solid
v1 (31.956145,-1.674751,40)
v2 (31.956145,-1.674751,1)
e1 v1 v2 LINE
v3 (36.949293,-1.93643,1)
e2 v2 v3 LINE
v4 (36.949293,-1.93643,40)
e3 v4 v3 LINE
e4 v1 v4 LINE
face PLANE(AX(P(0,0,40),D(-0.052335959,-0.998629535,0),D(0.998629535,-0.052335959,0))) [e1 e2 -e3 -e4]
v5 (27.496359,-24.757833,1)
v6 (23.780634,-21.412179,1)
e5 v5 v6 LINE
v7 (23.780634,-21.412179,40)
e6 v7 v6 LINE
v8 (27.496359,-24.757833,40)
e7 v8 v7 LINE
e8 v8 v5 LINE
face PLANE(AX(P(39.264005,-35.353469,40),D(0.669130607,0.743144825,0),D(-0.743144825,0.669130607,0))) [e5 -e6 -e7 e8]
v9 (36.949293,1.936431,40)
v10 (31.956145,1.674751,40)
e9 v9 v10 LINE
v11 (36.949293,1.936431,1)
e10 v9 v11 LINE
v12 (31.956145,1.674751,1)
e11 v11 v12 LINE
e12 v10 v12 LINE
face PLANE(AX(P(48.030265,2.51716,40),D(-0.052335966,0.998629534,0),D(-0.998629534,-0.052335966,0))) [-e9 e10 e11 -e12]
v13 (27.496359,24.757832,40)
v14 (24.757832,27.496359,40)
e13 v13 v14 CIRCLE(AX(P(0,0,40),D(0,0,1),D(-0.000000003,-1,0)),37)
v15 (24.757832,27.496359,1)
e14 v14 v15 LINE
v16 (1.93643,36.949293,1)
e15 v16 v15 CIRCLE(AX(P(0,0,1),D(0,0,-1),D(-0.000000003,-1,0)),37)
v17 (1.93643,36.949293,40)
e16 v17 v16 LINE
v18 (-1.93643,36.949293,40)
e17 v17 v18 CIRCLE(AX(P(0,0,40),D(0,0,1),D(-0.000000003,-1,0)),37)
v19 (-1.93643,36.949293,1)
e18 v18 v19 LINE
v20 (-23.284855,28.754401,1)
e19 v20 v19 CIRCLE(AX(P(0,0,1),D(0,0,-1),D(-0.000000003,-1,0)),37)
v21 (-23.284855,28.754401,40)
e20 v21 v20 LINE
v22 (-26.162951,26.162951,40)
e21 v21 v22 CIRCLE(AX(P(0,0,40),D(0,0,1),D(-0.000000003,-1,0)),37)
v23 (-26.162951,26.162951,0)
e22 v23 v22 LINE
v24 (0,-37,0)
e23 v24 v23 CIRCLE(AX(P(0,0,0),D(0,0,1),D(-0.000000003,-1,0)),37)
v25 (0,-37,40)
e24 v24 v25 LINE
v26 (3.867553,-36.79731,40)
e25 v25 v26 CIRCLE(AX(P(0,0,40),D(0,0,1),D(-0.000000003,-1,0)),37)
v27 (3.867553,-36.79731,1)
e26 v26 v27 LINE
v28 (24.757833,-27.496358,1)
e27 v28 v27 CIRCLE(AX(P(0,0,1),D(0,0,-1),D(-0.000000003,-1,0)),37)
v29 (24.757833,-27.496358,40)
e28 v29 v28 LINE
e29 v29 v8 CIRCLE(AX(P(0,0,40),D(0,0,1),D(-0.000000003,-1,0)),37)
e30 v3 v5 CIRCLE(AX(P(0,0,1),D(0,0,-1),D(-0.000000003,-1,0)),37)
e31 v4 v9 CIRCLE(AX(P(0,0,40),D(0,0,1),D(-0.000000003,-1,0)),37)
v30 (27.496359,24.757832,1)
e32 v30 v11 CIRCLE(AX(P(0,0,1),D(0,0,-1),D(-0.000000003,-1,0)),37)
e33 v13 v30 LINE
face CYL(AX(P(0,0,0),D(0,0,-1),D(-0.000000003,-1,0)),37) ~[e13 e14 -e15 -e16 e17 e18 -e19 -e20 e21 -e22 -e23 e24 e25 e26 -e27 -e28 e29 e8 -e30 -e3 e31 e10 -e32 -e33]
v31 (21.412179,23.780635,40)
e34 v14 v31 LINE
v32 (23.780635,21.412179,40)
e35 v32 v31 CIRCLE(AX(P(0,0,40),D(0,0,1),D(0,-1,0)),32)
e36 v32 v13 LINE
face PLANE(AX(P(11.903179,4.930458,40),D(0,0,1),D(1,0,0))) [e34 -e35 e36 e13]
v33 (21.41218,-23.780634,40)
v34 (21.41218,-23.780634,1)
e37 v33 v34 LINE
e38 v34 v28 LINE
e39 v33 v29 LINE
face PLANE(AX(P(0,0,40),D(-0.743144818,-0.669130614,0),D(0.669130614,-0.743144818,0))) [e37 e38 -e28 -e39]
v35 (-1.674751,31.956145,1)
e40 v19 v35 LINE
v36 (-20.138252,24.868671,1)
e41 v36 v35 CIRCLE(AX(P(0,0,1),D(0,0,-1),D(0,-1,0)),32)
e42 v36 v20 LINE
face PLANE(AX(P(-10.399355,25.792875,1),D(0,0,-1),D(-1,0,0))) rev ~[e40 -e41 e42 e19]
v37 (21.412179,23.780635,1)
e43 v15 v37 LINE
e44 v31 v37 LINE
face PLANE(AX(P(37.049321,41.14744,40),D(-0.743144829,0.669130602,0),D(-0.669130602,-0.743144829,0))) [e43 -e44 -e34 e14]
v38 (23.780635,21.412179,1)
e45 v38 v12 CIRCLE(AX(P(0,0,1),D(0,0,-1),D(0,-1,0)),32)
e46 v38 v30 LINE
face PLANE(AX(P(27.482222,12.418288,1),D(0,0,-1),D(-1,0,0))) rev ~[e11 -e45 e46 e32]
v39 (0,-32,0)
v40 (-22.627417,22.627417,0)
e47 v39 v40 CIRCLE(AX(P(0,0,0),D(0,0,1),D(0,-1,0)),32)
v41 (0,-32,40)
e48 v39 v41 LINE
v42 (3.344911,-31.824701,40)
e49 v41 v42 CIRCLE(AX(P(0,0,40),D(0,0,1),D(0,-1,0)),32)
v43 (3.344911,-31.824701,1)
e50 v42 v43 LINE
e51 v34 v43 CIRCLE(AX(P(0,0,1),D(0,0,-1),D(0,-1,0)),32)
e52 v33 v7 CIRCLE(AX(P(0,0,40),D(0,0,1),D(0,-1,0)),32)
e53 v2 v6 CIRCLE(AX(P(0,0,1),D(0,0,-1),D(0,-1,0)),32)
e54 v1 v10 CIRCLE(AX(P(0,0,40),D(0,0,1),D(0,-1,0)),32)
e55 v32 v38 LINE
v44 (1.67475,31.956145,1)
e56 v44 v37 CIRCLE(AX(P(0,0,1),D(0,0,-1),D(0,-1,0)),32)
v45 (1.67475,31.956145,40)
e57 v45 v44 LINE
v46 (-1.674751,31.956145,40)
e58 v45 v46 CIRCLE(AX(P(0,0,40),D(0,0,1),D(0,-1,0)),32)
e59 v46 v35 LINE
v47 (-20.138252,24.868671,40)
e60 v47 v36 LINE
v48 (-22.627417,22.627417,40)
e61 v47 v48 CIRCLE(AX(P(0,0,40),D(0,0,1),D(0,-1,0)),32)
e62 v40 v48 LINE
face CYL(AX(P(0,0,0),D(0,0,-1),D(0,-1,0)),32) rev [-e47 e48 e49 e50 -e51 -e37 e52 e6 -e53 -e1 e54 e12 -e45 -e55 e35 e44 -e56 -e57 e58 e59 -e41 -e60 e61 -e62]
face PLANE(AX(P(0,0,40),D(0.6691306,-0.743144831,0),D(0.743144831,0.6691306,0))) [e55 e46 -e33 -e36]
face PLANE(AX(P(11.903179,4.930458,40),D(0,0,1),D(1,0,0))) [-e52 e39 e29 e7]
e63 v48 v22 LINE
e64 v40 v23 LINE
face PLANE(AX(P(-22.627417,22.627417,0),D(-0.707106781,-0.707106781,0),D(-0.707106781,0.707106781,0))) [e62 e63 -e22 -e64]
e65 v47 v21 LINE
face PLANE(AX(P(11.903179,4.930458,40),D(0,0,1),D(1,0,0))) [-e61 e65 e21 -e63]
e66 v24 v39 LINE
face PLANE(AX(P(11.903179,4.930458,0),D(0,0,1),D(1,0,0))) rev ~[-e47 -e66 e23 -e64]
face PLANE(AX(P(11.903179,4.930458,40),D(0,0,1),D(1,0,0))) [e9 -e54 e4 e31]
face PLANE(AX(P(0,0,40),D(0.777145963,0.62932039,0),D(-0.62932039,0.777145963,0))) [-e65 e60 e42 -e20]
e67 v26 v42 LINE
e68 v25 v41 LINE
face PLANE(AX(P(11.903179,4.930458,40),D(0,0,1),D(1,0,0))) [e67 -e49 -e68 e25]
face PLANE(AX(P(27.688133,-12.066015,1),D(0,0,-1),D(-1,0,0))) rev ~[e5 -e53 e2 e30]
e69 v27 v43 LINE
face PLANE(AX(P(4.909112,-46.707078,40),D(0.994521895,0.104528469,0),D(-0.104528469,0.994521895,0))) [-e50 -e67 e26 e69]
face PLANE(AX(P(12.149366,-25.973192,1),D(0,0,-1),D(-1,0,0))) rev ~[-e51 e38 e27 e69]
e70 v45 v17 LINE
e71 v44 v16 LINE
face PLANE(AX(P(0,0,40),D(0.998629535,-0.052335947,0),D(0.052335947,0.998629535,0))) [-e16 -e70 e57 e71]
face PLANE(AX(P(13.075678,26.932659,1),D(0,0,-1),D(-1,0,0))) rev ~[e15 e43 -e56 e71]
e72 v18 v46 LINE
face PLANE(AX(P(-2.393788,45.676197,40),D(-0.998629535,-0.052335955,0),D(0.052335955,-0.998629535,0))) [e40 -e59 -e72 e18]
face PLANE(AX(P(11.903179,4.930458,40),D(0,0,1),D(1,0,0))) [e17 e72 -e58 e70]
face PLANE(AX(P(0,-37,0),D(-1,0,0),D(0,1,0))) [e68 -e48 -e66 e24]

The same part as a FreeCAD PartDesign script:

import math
import FreeCAD as App
import Part
import Sketcher
Q = App.Units.Quantity


def add_polygon(sketch, points):
    """Adds a closed chain of lines whose ends are joined by coincident constraints."""
    first, n = sketch.GeometryCount, len(points)
    for a, b in zip(points, points[1:] + points[:1]):
        sketch.addGeometry(Part.LineSegment(App.Vector(*a, 0), App.Vector(*b, 0)), False)
    for i in range(n):
        sketch.addConstraint(Sketcher.Constraint("Coincident", first + i, 2, first + (i + 1) % n, 1))

doc = App.newDocument("Part")
body = doc.addObject("PartDesign::Body", "Body")

# Sketch on XY plane
sketch1 = body.newObject("Sketcher::SketchObject", "Sketch")
sketch1.AttachmentSupport = (doc.getObject("XY_Plane"), [""])
sketch1.MapMode = "FlatFace"
sketch1.addGeometry([
    Part.ArcOfCircle(Part.Circle(App.Vector(0, 0, 0), App.Vector(0, 0, 1), 37), math.radians(-90), math.radians(135)),
    Part.LineSegment(App.Vector(-26, 26, 0), App.Vector(-23, 23, 0)),
    Part.ArcOfCircle(Part.Circle(App.Vector(0, 0, 0), App.Vector(0, 0, 1), 32), math.radians(-90), math.radians(135)),
    Part.LineSegment(App.Vector(0, -32, 0), App.Vector(0, -37, 0)),
], False)
sketch1.addConstraint([
    Sketcher.Constraint("Coincident", 0, 2, 1, 1),
    Sketcher.Constraint("Coincident", 1, 2, 2, 2),
    Sketcher.Constraint("Coincident", 2, 1, 3, 1),
    Sketcher.Constraint("Coincident", 3, 2, 0, 1),
    Sketcher.Constraint("Vertical", 3),
    Sketcher.Constraint("Coincident", 0, 3, -1, 1),
    Sketcher.Constraint("Coincident", 2, 3, -1, 1),
    Sketcher.Constraint("PointOnObject", 2, 1, -2),
    Sketcher.Constraint("Radius", 0, 37.0),
    Sketcher.Constraint("Radius", 2, 32.0),
    Sketcher.Constraint("Angle", 1, Q("-45 deg")),
    Sketcher.Constraint("DistanceX", 0, 2, -1, 1, 26.162951),
])
pad1 = body.newObject("PartDesign::Pad", "Pad")
pad1.Profile = sketch1
pad1.Length = 40

# Sketch on XY plane
sketch2 = body.newObject("Sketcher::SketchObject", "Sketch001")
sketch2.AttachmentSupport = (doc.getObject("XY_Plane"), [""])
sketch2.MapMode = "FlatFace"
sketch2.AttachmentOffset = App.Placement(App.Vector(0, 0, 40), App.Rotation())
add_polygon(sketch2, [(-31, 38), (0, 0), (-2, 46)])  # lines 0-2
add_polygon(sketch2, [(2, 45), (0, 0), (37, 41)])  # lines 3-5
add_polygon(sketch2, [(40, 36), (0, 0), (48, 3)])  # lines 6-8
add_polygon(sketch2, [(49, -3), (0, 0), (39, -35)])  # lines 9-11
add_polygon(sketch2, [(34, -37), (0, 0), (5, -47)])  # lines 12-14
sketch2.addConstraint([
    Sketcher.Constraint("Coincident", 0, 2, -1, 1),
    Sketcher.Constraint("Coincident", 3, 2, -1, 1),
    Sketcher.Constraint("Coincident", 6, 2, -1, 1),
    Sketcher.Constraint("Coincident", 9, 2, -1, 1),
    Sketcher.Constraint("Coincident", 12, 2, -1, 1),
    Sketcher.Constraint("Perpendicular", 1, 7),
    Sketcher.Constraint("Perpendicular", 3, 9),
    Sketcher.Constraint("Perpendicular", 4, 10),
    Sketcher.Constraint("Perpendicular", 6, 12),
    Sketcher.Constraint("Angle", 0, Q("-51 deg")),
    Sketcher.Constraint("Angle", 1, Q("93 deg")),
    Sketcher.Constraint("Angle", 3, Q("-92.999999 deg")),
    Sketcher.Constraint("Angle", 4, Q("48 deg")),
    Sketcher.Constraint("Angle", 6, Q("-138 deg")),
    Sketcher.Constraint("Angle", 13, Q("-84 deg")),
    Sketcher.Constraint("Distance", 9, 49.529101),
    Sketcher.Constraint("DistanceX", 2, 2, 4, 2, 67.7289),
    Sketcher.Constraint("DistanceY", 7, 2, 8, 2, 33.498198),
    Sketcher.Constraint("DistanceX", 4, 2, 11, 2, 12.411902),
    Sketcher.Constraint("Distance", 1, 45.738881),
    Sketcher.Constraint("Distance", 3, 44.742422),
    Sketcher.Constraint("Distance", 6, 53.824108),
    Sketcher.Constraint("Distance", 10, 52.83493),
    Sketcher.Constraint("Distance", 12, 50.425321),
    Sketcher.Constraint("DistanceY", 13, 2, -1, 1, 46.707078),
])
pocket1 = body.newObject("PartDesign::Pocket", "Pocket")
pocket1.Profile = sketch2
pocket1.Length = 39

doc.recompute()
